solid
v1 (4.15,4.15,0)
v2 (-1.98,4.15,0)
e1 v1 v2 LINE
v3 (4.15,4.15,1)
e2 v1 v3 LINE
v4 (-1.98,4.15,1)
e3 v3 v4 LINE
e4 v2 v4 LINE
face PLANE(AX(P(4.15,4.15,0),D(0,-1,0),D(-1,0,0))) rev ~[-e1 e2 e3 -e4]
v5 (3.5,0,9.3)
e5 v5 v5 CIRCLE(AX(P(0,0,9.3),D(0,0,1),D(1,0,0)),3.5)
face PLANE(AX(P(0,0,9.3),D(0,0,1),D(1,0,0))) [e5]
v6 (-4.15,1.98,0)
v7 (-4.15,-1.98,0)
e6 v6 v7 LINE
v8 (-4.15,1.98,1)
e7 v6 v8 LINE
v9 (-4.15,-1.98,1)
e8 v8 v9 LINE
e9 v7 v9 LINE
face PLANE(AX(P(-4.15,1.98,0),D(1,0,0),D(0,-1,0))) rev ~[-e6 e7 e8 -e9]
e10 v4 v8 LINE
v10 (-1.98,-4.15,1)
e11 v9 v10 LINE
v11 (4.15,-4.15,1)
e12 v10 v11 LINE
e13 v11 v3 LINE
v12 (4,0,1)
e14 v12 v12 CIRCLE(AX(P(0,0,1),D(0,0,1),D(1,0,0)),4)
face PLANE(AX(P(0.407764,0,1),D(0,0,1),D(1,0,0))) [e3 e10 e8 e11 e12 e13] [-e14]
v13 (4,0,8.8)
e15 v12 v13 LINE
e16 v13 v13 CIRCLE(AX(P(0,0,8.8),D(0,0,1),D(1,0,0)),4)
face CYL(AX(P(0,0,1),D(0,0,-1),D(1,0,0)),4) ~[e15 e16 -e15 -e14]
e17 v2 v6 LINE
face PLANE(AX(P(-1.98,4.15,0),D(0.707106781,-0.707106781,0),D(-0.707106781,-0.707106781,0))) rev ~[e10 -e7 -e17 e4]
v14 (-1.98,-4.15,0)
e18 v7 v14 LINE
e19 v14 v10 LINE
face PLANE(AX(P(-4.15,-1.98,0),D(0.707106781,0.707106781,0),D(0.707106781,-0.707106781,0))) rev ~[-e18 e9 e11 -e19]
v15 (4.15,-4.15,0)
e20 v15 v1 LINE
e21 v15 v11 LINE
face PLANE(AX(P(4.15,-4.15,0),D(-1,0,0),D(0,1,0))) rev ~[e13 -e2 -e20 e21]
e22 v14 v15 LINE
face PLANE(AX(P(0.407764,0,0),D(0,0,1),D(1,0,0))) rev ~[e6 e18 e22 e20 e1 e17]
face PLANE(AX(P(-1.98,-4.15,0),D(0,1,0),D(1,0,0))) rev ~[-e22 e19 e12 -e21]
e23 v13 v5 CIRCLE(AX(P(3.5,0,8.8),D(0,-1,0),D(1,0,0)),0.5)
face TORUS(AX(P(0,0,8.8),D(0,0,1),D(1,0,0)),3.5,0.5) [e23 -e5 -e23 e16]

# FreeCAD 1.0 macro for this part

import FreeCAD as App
import Part
import Sketcher
Q = App.Units.Quantity


def edges_at(feature, points):
    """Names of the edges that pass closest to the given points."""
    edges = feature.Shape.Edges
    near = lambda p: min(range(len(edges)), key=lambda i: edges[i].distToShape(Part.Vertex(*p))[0])
    return sorted({f"Edge{near(p) + 1}" for p in points})

doc = App.newDocument("Part")
body = doc.addObject("PartDesign::Body", "Body")

# Sketch on XY plane
sketch1 = body.newObject("Sketcher::SketchObject", "Sketch")
sketch1.AttachmentSupport = (doc.getObject("XY_Plane"), [""])
sketch1.MapMode = "FlatFace"
sketch1.addGeometry([
    Part.LineSegment(App.Vector(-2, 4.2, 0), App.Vector(-4.2, 2, 0)),  # 0
    Part.LineSegment(App.Vector(-4.2, 2, 0), App.Vector(-4.2, -2, 0)),  # 1
    Part.LineSegment(App.Vector(-4.2, -2, 0), App.Vector(-2, -4.2, 0)),  # 2
    Part.LineSegment(App.Vector(-2, -4.2, 0), App.Vector(4.2, -4.2, 0)),  # 3
    Part.LineSegment(App.Vector(4.2, -4.2, 0), App.Vector(4.2, 4.2, 0)),  # 4
    Part.LineSegment(App.Vector(4.2, 4.2, 0), App.Vector(-2, 4.2, 0)),  # 5
], False)
sketch1.addConstraint([
    Sketcher.Constraint("Coincident", 0, 2, 1, 1),
    Sketcher.Constraint("Coincident", 1, 2, 2, 1),
    Sketcher.Constraint("Coincident", 2, 2, 3, 1),
    Sketcher.Constraint("Coincident", 3, 2, 4, 1),
    Sketcher.Constraint("Coincident", 4, 2, 5, 1),
    Sketcher.Constraint("Coincident", 5, 2, 0, 1),
    Sketcher.Constraint("Vertical", 1),
    Sketcher.Constraint("Horizontal", 3),
    Sketcher.Constraint("Vertical", 4),
    Sketcher.Constraint("Horizontal", 5),
    Sketcher.Constraint("Symmetric", 2, 2, 5, 2, -1),
    Sketcher.Constraint("Perpendicular", 0, 2),
    Sketcher.Constraint("Equal", 0, 2),
    Sketcher.Constraint("DistanceY", 4, 1, 4, 2, Q("8.3 mm")),
    Sketcher.Constraint("DistanceX", 3, 1, 3, 2, Q("6.13 mm")),
    Sketcher.Constraint("DistanceY", 1, 2, 1, 1, Q("3.96 mm")),
    Sketcher.Constraint("DistanceX", 0, 2, -1, 1, Q("4.15 mm")),
])
pad1 = body.newObject("PartDesign::Pad", "Pad")
pad1.Profile = sketch1
pad1.Length = 1

# Sketch on XY plane
sketch2 = body.newObject("Sketcher::SketchObject", "Sketch001")
sketch2.AttachmentSupport = (doc.getObject("XY_Plane"), [""])
sketch2.MapMode = "FlatFace"
sketch2.AttachmentOffset = App.Placement(App.Vector(0, 0, 1), App.Rotation())
sketch2.addGeometry(Part.Circle(App.Vector(0, 0, 0), App.Vector(0, 0, 1), 4), False)
sketch2.addConstraint([
    Sketcher.Constraint("Coincident", 0, 3, -1, 1),
    Sketcher.Constraint("Diameter", 0, Q("8 mm")),
])
pad2 = body.newObject("PartDesign::Pad", "Pad001")
pad2.Profile = sketch2
pad2.Length = 8.3
doc.recompute()

fillet = body.newObject("PartDesign::Fillet", "Fillet")
fillet.Base = (pad2, edges_at(pad2, [(-4, 0, 9.3)]))
fillet.Radius = 0.5

doc.recompute()
